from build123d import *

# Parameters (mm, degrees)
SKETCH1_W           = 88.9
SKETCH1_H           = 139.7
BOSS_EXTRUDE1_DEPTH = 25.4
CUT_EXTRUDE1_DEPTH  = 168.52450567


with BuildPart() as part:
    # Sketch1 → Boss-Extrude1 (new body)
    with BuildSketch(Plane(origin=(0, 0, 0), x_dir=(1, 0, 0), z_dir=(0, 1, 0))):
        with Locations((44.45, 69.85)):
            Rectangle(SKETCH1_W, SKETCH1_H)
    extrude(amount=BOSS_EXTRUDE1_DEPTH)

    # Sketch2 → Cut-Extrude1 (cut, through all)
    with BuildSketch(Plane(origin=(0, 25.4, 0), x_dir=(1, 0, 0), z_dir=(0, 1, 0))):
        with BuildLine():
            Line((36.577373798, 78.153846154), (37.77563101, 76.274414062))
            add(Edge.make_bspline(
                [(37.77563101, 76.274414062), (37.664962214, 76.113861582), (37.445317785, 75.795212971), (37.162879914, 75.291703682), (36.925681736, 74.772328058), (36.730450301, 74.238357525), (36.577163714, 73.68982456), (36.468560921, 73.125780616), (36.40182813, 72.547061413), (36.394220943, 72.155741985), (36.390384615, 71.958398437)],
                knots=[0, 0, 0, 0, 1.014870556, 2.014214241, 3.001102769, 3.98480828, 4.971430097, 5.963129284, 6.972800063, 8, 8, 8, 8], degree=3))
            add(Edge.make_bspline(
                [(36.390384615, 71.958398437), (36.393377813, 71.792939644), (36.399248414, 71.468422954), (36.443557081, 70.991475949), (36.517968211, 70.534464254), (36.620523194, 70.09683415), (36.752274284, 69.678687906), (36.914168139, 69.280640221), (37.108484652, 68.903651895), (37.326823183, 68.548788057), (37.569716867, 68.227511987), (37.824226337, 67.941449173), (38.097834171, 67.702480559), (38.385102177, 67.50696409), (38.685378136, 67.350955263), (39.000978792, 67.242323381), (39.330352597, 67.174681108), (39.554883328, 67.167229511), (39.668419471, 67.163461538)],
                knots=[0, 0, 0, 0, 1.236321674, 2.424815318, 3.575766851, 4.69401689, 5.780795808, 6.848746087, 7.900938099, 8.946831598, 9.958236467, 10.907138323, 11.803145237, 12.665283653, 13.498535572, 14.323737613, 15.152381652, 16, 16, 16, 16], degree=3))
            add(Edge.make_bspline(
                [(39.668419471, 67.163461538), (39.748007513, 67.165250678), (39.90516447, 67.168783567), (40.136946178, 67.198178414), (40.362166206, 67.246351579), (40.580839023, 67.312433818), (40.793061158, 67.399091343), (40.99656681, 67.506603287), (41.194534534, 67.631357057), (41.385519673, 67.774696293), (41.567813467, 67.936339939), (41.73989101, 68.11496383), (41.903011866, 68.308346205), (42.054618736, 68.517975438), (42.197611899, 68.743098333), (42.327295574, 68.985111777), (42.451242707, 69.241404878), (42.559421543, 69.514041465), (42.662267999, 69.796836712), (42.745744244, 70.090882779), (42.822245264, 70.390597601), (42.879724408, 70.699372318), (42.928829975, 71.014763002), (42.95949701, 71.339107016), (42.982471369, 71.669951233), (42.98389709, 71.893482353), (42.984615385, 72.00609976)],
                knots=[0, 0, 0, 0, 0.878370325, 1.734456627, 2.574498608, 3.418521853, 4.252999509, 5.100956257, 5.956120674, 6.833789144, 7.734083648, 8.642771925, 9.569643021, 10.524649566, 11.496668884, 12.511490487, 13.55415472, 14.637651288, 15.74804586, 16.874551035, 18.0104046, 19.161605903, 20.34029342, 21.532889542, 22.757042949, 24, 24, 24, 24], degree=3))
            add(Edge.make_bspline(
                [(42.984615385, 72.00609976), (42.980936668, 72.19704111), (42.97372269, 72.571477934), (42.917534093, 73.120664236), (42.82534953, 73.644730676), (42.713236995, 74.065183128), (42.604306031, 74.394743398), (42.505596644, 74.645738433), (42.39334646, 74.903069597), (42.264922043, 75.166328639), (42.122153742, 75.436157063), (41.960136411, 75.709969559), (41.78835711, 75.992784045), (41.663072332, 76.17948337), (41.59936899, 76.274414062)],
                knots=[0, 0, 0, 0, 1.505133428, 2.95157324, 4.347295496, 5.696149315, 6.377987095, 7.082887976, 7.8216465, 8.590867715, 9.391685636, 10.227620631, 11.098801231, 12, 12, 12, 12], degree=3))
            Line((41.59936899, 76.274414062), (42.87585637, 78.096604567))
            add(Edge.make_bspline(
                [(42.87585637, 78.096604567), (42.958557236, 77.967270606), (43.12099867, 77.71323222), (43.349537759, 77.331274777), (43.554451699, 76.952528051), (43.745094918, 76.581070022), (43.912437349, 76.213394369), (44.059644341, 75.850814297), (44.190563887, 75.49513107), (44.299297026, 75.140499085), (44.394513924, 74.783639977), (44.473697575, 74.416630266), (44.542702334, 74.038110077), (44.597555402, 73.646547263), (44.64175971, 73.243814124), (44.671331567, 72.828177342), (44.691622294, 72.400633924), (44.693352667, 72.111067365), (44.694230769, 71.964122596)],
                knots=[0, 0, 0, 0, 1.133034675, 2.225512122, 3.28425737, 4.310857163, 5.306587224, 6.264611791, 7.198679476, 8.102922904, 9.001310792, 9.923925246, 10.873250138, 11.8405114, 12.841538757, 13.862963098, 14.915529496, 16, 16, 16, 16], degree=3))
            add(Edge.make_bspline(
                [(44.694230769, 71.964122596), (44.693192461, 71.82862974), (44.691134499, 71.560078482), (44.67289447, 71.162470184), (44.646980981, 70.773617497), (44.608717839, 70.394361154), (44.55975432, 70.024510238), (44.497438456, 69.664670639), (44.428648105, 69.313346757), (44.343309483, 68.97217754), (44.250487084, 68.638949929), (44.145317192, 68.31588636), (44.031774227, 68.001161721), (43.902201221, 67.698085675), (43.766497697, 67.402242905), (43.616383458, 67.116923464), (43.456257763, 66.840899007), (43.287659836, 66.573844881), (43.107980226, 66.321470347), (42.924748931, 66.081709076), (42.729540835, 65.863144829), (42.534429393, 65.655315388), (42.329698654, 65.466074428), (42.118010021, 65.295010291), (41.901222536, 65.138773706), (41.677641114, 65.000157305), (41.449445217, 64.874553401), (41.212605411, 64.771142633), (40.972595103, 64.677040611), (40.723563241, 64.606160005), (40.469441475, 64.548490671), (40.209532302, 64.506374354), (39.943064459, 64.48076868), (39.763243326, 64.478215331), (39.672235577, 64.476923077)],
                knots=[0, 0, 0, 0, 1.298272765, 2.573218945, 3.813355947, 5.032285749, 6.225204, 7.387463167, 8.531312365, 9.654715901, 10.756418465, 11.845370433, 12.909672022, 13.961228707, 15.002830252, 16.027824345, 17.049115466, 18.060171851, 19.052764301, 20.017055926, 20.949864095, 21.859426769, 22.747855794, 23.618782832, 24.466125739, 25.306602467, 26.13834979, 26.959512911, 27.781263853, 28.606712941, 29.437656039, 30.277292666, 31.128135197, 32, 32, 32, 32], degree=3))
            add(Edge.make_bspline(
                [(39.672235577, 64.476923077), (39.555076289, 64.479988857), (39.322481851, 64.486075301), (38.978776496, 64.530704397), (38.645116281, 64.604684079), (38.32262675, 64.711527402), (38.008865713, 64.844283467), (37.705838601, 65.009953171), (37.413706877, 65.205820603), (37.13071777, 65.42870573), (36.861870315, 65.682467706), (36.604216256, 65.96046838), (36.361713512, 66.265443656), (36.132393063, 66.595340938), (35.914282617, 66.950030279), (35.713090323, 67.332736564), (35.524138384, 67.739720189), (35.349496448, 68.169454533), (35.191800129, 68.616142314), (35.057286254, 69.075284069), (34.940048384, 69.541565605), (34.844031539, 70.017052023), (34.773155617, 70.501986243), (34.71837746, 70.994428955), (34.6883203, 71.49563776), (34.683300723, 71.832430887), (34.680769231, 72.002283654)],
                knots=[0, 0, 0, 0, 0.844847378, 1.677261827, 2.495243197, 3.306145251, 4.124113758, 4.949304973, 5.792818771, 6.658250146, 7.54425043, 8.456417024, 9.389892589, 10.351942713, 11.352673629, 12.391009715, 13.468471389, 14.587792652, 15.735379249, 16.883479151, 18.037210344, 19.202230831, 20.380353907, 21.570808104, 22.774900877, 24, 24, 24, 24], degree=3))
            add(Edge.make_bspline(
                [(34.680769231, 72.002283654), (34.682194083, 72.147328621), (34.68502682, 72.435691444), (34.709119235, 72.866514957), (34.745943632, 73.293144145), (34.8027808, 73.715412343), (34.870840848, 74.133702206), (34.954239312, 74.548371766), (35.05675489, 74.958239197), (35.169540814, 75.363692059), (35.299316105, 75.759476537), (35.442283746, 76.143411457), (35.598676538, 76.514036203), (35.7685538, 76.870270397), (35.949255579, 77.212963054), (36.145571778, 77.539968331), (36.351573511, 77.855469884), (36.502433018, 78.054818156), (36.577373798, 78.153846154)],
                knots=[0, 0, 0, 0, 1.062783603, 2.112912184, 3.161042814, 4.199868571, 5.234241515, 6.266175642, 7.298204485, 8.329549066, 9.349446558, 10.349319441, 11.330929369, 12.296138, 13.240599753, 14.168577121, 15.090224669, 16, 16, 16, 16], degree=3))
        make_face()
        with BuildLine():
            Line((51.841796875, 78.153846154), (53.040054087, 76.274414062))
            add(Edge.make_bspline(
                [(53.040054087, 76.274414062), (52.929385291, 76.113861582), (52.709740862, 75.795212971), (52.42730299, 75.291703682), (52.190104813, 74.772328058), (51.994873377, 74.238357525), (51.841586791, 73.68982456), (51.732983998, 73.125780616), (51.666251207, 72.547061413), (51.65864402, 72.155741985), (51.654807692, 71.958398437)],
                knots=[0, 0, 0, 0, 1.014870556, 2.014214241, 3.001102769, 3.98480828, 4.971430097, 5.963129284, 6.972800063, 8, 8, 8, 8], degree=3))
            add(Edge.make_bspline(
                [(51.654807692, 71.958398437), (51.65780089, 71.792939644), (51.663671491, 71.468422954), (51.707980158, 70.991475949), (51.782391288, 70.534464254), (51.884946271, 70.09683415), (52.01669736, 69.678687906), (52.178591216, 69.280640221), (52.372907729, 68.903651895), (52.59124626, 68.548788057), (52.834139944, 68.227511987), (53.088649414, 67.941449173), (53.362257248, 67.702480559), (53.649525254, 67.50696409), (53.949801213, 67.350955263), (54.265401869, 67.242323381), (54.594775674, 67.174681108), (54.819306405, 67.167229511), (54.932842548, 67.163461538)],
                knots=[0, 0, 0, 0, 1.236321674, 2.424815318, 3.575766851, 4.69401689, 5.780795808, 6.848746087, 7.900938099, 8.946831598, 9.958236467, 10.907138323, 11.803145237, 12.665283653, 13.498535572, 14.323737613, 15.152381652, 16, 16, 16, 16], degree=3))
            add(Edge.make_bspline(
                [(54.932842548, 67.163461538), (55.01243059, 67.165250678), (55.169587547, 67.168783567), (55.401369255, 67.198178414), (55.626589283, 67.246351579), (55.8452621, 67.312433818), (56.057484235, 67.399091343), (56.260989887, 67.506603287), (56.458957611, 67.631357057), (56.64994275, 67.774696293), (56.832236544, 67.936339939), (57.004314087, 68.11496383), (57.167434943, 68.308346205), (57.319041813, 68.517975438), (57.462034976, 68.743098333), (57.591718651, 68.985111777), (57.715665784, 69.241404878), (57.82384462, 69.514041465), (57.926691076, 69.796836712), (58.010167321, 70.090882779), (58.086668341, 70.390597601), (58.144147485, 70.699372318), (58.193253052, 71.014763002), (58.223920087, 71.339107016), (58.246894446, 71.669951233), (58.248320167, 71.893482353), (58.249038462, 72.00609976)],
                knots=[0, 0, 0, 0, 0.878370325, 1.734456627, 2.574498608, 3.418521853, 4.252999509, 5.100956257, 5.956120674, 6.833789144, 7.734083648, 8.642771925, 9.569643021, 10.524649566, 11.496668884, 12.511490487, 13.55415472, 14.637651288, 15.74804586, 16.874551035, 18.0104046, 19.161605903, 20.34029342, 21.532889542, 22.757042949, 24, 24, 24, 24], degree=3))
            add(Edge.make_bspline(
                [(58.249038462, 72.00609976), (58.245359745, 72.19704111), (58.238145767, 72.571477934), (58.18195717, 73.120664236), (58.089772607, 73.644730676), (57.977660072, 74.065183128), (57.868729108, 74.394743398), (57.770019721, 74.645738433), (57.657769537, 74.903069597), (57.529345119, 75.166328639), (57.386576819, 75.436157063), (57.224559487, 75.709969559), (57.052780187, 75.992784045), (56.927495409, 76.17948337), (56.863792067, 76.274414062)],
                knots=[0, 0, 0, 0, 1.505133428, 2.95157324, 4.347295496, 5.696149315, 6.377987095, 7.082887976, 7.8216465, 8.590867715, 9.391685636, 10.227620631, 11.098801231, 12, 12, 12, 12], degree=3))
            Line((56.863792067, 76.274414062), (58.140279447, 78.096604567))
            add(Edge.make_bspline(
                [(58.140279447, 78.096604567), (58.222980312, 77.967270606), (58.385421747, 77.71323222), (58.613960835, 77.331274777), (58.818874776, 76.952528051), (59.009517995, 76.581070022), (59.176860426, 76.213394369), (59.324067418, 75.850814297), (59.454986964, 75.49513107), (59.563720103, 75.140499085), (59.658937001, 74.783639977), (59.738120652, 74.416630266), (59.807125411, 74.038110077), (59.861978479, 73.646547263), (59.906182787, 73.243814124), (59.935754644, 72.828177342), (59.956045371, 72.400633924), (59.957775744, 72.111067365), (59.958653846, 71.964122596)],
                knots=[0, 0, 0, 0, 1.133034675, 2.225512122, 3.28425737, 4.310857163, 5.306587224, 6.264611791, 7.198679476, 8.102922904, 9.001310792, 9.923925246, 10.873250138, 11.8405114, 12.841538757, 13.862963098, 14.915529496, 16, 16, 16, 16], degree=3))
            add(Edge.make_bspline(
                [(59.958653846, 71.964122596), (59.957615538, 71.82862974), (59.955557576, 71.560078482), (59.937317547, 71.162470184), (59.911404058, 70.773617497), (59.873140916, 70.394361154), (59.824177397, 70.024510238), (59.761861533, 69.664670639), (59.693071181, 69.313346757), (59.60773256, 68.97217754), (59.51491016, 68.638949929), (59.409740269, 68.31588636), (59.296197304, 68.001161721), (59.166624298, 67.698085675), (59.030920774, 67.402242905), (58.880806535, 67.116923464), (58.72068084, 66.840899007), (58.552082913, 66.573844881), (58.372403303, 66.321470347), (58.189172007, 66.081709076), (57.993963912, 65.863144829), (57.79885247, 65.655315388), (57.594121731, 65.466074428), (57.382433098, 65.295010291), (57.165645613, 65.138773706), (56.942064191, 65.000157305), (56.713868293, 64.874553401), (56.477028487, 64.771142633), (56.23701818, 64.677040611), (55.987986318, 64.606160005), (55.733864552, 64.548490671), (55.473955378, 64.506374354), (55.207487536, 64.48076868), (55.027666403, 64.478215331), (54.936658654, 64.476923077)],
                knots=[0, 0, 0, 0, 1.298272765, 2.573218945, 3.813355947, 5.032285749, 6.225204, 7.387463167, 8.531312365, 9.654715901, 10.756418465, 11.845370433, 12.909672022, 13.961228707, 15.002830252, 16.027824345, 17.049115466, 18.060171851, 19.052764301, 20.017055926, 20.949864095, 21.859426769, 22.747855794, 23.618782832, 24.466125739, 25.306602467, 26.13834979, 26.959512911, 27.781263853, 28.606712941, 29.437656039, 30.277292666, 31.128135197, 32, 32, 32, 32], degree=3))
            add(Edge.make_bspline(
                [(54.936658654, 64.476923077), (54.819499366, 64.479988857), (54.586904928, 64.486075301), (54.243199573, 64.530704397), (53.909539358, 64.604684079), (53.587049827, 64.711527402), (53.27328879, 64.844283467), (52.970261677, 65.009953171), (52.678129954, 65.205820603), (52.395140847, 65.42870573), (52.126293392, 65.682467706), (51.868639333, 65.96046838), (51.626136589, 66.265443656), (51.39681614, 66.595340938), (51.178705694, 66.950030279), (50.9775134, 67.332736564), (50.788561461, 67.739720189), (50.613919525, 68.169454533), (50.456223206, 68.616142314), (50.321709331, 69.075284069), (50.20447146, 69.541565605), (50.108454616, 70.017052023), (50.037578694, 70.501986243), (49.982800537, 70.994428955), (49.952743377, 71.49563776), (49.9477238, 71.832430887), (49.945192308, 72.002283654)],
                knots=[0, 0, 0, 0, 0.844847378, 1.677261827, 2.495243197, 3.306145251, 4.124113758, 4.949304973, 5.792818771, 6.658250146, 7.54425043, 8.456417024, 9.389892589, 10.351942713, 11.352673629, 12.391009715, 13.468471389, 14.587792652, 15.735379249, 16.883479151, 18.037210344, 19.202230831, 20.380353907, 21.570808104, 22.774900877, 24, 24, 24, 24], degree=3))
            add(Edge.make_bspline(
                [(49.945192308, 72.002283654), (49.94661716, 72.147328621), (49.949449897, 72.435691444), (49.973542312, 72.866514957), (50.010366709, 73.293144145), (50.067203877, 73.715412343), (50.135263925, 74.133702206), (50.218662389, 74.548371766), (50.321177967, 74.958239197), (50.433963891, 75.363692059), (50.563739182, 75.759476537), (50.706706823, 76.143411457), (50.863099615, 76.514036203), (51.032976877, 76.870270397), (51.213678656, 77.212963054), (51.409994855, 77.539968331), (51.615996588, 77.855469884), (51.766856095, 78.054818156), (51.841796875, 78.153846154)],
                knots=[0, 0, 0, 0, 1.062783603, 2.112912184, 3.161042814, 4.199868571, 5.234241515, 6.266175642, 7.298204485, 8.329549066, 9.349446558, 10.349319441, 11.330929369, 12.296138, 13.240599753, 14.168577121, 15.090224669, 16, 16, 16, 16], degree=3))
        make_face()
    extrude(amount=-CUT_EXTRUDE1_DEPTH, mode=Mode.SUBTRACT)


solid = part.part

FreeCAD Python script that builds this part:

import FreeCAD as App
import Part
import Sketcher
Q = App.Units.Quantity

doc = App.newDocument("Part")
body = doc.addObject("PartDesign::Body", "Body")

sketch1 = body.newObject("Sketcher::SketchObject", "Sketch")
sketch1.AttachmentSupport = (doc.getObject("XZ_Plane"), [""])
sketch1.MapMode = "FlatFace"
sketch1.addGeometry([
    Part.LineSegment(App.Vector(0, -140, 0), App.Vector(0, 0, 0)),
    Part.LineSegment(App.Vector(0, 0, 0), App.Vector(89, 0, 0)),
    Part.LineSegment(App.Vector(89, 0, 0), App.Vector(89, -140, 0)),
    Part.LineSegment(App.Vector(89, -140, 0), App.Vector(0, -140, 0)),
], False)
sketch1.addConstraint([
    Sketcher.Constraint("Coincident", 0, 2, 1, 1),
    Sketcher.Constraint("Coincident", 1, 2, 2, 1),
    Sketcher.Constraint("Coincident", 2, 2, 3, 1),
    Sketcher.Constraint("Coincident", 3, 2, 0, 1),
    Sketcher.Constraint("Vertical", 0),
    Sketcher.Constraint("Horizontal", 1),
    Sketcher.Constraint("Vertical", 2),
    Sketcher.Constraint("Horizontal", 3),
    Sketcher.Constraint("Coincident", 0, 2, -1, 1),
    Sketcher.Constraint("DistanceX", 1, 1, 1, 2, Q("3.5 in")),
    Sketcher.Constraint("DistanceY", 0, 1, 0, 2, Q("5.5 in")),
])
pad1 = body.newObject("PartDesign::Pad", "Pad")
pad1.Profile = sketch1
pad1.Length = Q("1 in")
pad1.Reversed = True

sketch2 = body.newObject("Sketcher::SketchObject", "Sketch001")
sketch2.AttachmentSupport = (doc.getObject("XZ_Plane"), [""])
sketch2.MapMode = "FlatFace"
sketch2.AttachmentOffset = App.Placement(App.Vector(0, 0, -1 * 25.4), App.Rotation())
sketch2.addGeometry([
    Part.LineSegment(App.Vector(37.775631, -76.274414, 0), App.Vector(36.577374, -78.153846, 0)),
    Part.BSplineCurve([App.Vector(34.680769, -72.002284, 0), App.Vector(34.682194, -72.147329, 0), App.Vector(34.685027, -72.435691, 0), App.Vector(34.709119, -72.866515, 0), App.Vector(34.745944, -73.293144, 0), App.Vector(34.802781, -73.715412, 0), App.Vector(34.870841, -74.133702, 0), App.Vector(34.954239, -74.548372, 0), App.Vector(35.056755, -74.958239, 0), App.Vector(35.169541, -75.363692, 0), App.Vector(35.299316, -75.759477, 0), App.Vector(35.442284, -76.143411, 0), App.Vector(35.598677, -76.514036, 0), App.Vector(35.768554, -76.87027, 0), App.Vector(35.949256, -77.212963, 0), App.Vector(36.145572, -77.539968, 0), App.Vector(36.351574, -77.85547, 0), App.Vector(36.502433, -78.054818, 0), App.Vector(36.577374, -78.153846, 0)], [4, 1, 1, 1, 1, 1, 1, 1, 1, 1, 1, 1, 1, 1, 1, 1, 4], [0, 1.062783603, 2.112912184, 3.161042814, 4.199868571, 5.234241515, 6.266175642, 7.298204485, 8.329549066, 9.349446558, 10.349319441, 11.330929369, 12.296138, 13.240599753, 14.168577121, 15.090224669, 16], False, 3, [1, 1, 1, 1, 1, 1, 1, 1, 1, 1, 1, 1, 1, 1, 1, 1, 1, 1, 1], False),
    Part.BSplineCurve([App.Vector(39.672236, -64.476923, 0), App.Vector(39.555076, -64.479989, 0), App.Vector(39.322482, -64.486075, 0), App.Vector(38.978776, -64.530704, 0), App.Vector(38.645116, -64.604684, 0), App.Vector(38.322627, -64.711527, 0), App.Vector(38.008866, -64.844283, 0), App.Vector(37.705839, -65.009953, 0), App.Vector(37.413707, -65.205821, 0), App.Vector(37.130718, -65.428706, 0), App.Vector(36.86187, -65.682468, 0), App.Vector(36.604216, -65.960468, 0), App.Vector(36.361714, -66.265444, 0), App.Vector(36.132393, -66.595341, 0), App.Vector(35.914283, -66.95003, 0), App.Vector(35.71309, -67.332737, 0), App.Vector(35.524138, -67.73972, 0), App.Vector(35.349496, -68.169455, 0), App.Vector(35.1918, -68.616142, 0), App.Vector(35.057286, -69.075284, 0), App.Vector(34.940048, -69.541566, 0), App.Vector(34.844032, -70.017052, 0), App.Vector(34.773156, -70.501986, 0), App.Vector(34.718377, -70.994429, 0), App.Vector(34.68832, -71.495638, 0), App.Vector(34.683301, -71.832431, 0), App.Vector(34.680769, -72.002284, 0)], [4, 1, 1, 1, 1, 1, 1, 1, 1, 1, 1, 1, 1, 1, 1, 1, 1, 1, 1, 1, 1, 1, 1, 1, 4], [0, 0.844847378, 1.677261827, 2.495243197, 3.306145251, 4.124113758, 4.949304973, 5.792818771, 6.658250146, 7.54425043, 8.456417024, 9.389892589, 10.351942713, 11.352673629, 12.391009715, 13.468471389, 14.587792652, 15.735379249, 16.883479151, 18.037210344, 19.202230831, 20.380353907, 21.570808104, 22.774900877, 24], False, 3, [1, 1, 1, 1, 1, 1, 1, 1, 1, 1, 1, 1, 1, 1, 1, 1, 1, 1, 1, 1, 1, 1, 1, 1, 1, 1, 1], False),
    Part.BSplineCurve([App.Vector(44.694231, -71.964123, 0), App.Vector(44.693192, -71.82863, 0), App.Vector(44.691134, -71.560078, 0), App.Vector(44.672894, -71.16247, 0), App.Vector(44.646981, -70.773617, 0), App.Vector(44.608718, -70.394361, 0), App.Vector(44.559754, -70.02451, 0), App.Vector(44.497438, -69.664671, 0), App.Vector(44.428648, -69.313347, 0), App.Vector(44.343309, -68.972178, 0), App.Vector(44.250487, -68.63895, 0), App.Vector(44.145317, -68.315886, 0), App.Vector(44.031774, -68.001162, 0), App.Vector(43.902201, -67.698086, 0), App.Vector(43.766498, -67.402243, 0), App.Vector(43.616383, -67.116923, 0), App.Vector(43.456258, -66.840899, 0), App.Vector(43.28766, -66.573845, 0), App.Vector(43.10798, -66.32147, 0), App.Vector(42.924749, -66.081709, 0), App.Vector(42.729541, -65.863145, 0), App.Vector(42.534429, -65.655315, 0), App.Vector(42.329699, -65.466074, 0), App.Vector(42.11801, -65.29501, 0), App.Vector(41.901223, -65.138774, 0), App.Vector(41.677641, -65.000157, 0), App.Vector(41.449445, -64.874553, 0), App.Vector(41.212605, -64.771143, 0), App.Vector(40.972595, -64.677041, 0), App.Vector(40.723563, -64.60616, 0), App.Vector(40.469441, -64.548491, 0), App.Vector(40.209532, -64.506374, 0), App.Vector(39.943064, -64.480769, 0), App.Vector(39.763243, -64.478215, 0), App.Vector(39.672236, -64.476923, 0)], [4, 1, 1, 1, 1, 1, 1, 1, 1, 1, 1, 1, 1, 1, 1, 1, 1, 1, 1, 1, 1, 1, 1, 1, 1, 1, 1, 1, 1, 1, 1, 1, 4], [0, 1.298272765, 2.573218945, 3.813355947, 5.032285749, 6.225204, 7.387463167, 8.531312365, 9.654715901, 10.756418465, 11.845370433, 12.909672022, 13.961228707, 15.002830252, 16.027824345, 17.049115466, 18.060171851, 19.052764301, 20.017055926, 20.949864095, 21.859426769, 22.747855794, 23.618782832, 24.466125739, 25.306602467, 26.13834979, 26.959512911, 27.781263853, 28.606712941, 29.437656039, 30.277292666, 31.128135197, 32], False, 3, [1, 1, 1, 1, 1, 1, 1, 1, 1, 1, 1, 1, 1, 1, 1, 1, 1, 1, 1, 1, 1, 1, 1, 1, 1, 1, 1, 1, 1, 1, 1, 1, 1, 1, 1], False),
    Part.BSplineCurve([App.Vector(42.875856, -78.096605, 0), App.Vector(42.958557, -77.967271, 0), App.Vector(43.120999, -77.713232, 0), App.Vector(43.349538, -77.331275, 0), App.Vector(43.554452, -76.952528, 0), App.Vector(43.745095, -76.58107, 0), App.Vector(43.912437, -76.213394, 0), App.Vector(44.059644, -75.850814, 0), App.Vector(44.190564, -75.495131, 0), App.Vector(44.299297, -75.140499, 0), App.Vector(44.394514, -74.78364, 0), App.Vector(44.473698, -74.41663, 0), App.Vector(44.542702, -74.03811, 0), App.Vector(44.597555, -73.646547, 0), App.Vector(44.64176, -73.243814, 0), App.Vector(44.671332, -72.828177, 0), App.Vector(44.691622, -72.400634, 0), App.Vector(44.693353, -72.111067, 0), App.Vector(44.694231, -71.964123, 0)], [4, 1, 1, 1, 1, 1, 1, 1, 1, 1, 1, 1, 1, 1, 1, 1, 4], [0, 1.133034675, 2.225512122, 3.28425737, 4.310857163, 5.306587224, 6.264611791, 7.198679476, 8.102922904, 9.001310792, 9.923925246, 10.873250138, 11.8405114, 12.841538757, 13.862963098, 14.915529496, 16], False, 3, [1, 1, 1, 1, 1, 1, 1, 1, 1, 1, 1, 1, 1, 1, 1, 1, 1, 1, 1], False),
    Part.LineSegment(App.Vector(42.875856, -78.096605, 0), App.Vector(41.599369, -76.274414, 0)),
    Part.BSplineCurve([App.Vector(42.984615, -72.0061, 0), App.Vector(42.980937, -72.197041, 0), App.Vector(42.973723, -72.571478, 0), App.Vector(42.917534, -73.120664, 0), App.Vector(42.82535, -73.644731, 0), App.Vector(42.713237, -74.065183, 0), App.Vector(42.604306, -74.394743, 0), App.Vector(42.505597, -74.645738, 0), App.Vector(42.393346, -74.90307, 0), App.Vector(42.264922, -75.166329, 0), App.Vector(42.122154, -75.436157, 0), App.Vector(41.960136, -75.70997, 0), App.Vector(41.788357, -75.992784, 0), App.Vector(41.663072, -76.179483, 0), App.Vector(41.599369, -76.274414, 0)], [4, 1, 1, 1, 1, 1, 1, 1, 1, 1, 1, 1, 4], [0, 1.505133428, 2.95157324, 4.347295496, 5.696149315, 6.377987095, 7.082887976, 7.8216465, 8.590867715, 9.391685636, 10.227620631, 11.098801231, 12], False, 3, [1, 1, 1, 1, 1, 1, 1, 1, 1, 1, 1, 1, 1, 1, 1], False),
    Part.BSplineCurve([App.Vector(39.668419, -67.163462, 0), App.Vector(39.748008, -67.165251, 0), App.Vector(39.905164, -67.168784, 0), App.Vector(40.136946, -67.198178, 0), App.Vector(40.362166, -67.246352, 0), App.Vector(40.580839, -67.312434, 0), App.Vector(40.793061, -67.399091, 0), App.Vector(40.996567, -67.506603, 0), App.Vector(41.194535, -67.631357, 0), App.Vector(41.38552, -67.774696, 0), App.Vector(41.567813, -67.93634, 0), App.Vector(41.739891, -68.114964, 0), App.Vector(41.903012, -68.308346, 0), App.Vector(42.054619, -68.517975, 0), App.Vector(42.197612, -68.743098, 0), App.Vector(42.327296, -68.985112, 0), App.Vector(42.451243, -69.241405, 0), App.Vector(42.559422, -69.514041, 0), App.Vector(42.662268, -69.796837, 0), App.Vector(42.745744, -70.090883, 0), App.Vector(42.822245, -70.390598, 0), App.Vector(42.879724, -70.699372, 0), App.Vector(42.92883, -71.014763, 0), App.Vector(42.959497, -71.339107, 0), App.Vector(42.982471, -71.669951, 0), App.Vector(42.983897, -71.893482, 0), App.Vector(42.984615, -72.0061, 0)], [4, 1, 1, 1, 1, 1, 1, 1, 1, 1, 1, 1, 1, 1, 1, 1, 1, 1, 1, 1, 1, 1, 1, 1, 4], [0, 0.878370325, 1.734456627, 2.574498608, 3.418521853, 4.252999509, 5.100956257, 5.956120674, 6.833789144, 7.734083648, 8.642771925, 9.569643021, 10.524649566, 11.496668884, 12.511490487, 13.55415472, 14.637651288, 15.74804586, 16.874551035, 18.0104046, 19.161605903, 20.34029342, 21.532889542, 22.757042949, 24], False, 3, [1, 1, 1, 1, 1, 1, 1, 1, 1, 1, 1, 1, 1, 1, 1, 1, 1, 1, 1, 1, 1, 1, 1, 1, 1, 1, 1], False),
    Part.BSplineCurve([App.Vector(36.390385, -71.958398, 0), App.Vector(36.393378, -71.79294, 0), App.Vector(36.399248, -71.468423, 0), App.Vector(36.443557, -70.991476, 0), App.Vector(36.517968, -70.534464, 0), App.Vector(36.620523, -70.096834, 0), App.Vector(36.752274, -69.678688, 0), App.Vector(36.914168, -69.28064, 0), App.Vector(37.108485, -68.903652, 0), App.Vector(37.326823, -68.548788, 0), App.Vector(37.569717, -68.227512, 0), App.Vector(37.824226, -67.941449, 0), App.Vector(38.097834, -67.702481, 0), App.Vector(38.385102, -67.506964, 0), App.Vector(38.685378, -67.350955, 0), App.Vector(39.000979, -67.242323, 0), App.Vector(39.330353, -67.174681, 0), App.Vector(39.554883, -67.16723, 0), App.Vector(39.668419, -67.163462, 0)], [4, 1, 1, 1, 1, 1, 1, 1, 1, 1, 1, 1, 1, 1, 1, 1, 4], [0, 1.236321674, 2.424815318, 3.575766851, 4.69401689, 5.780795808, 6.848746087, 7.900938099, 8.946831598, 9.958236467, 10.907138323, 11.803145237, 12.665283653, 13.498535572, 14.323737613, 15.152381652, 16], False, 3, [1, 1, 1, 1, 1, 1, 1, 1, 1, 1, 1, 1, 1, 1, 1, 1, 1, 1, 1], False),
    Part.BSplineCurve([App.Vector(37.775631, -76.274414, 0), App.Vector(37.664962, -76.113862, 0), App.Vector(37.445318, -75.795213, 0), App.Vector(37.16288, -75.291704, 0), App.Vector(36.925682, -74.772328, 0), App.Vector(36.73045, -74.238358, 0), App.Vector(36.577164, -73.689825, 0), App.Vector(36.468561, -73.125781, 0), App.Vector(36.401828, -72.547061, 0), App.Vector(36.394221, -72.155742, 0), App.Vector(36.390385, -71.958398, 0)], [4, 1, 1, 1, 1, 1, 1, 1, 4], [0, 1.014870556, 2.014214241, 3.001102769, 3.98480828, 4.971430097, 5.963129284, 6.972800063, 8], False, 3, [1, 1, 1, 1, 1, 1, 1, 1, 1, 1, 1], False),
    Part.LineSegment(App.Vector(53.040054, -76.274414, 0), App.Vector(51.841797, -78.153846, 0)),
    Part.BSplineCurve([App.Vector(49.945192, -72.002284, 0), App.Vector(49.946617, -72.147329, 0), App.Vector(49.94945, -72.435691, 0), App.Vector(49.973542, -72.866515, 0), App.Vector(50.010367, -73.293144, 0), App.Vector(50.067204, -73.715412, 0), App.Vector(50.135264, -74.133702, 0), App.Vector(50.218662, -74.548372, 0), App.Vector(50.321178, -74.958239, 0), App.Vector(50.433964, -75.363692, 0), App.Vector(50.563739, -75.759477, 0), App.Vector(50.706707, -76.143411, 0), App.Vector(50.8631, -76.514036, 0), App.Vector(51.032977, -76.87027, 0), App.Vector(51.213679, -77.212963, 0), App.Vector(51.409995, -77.539968, 0), App.Vector(51.615997, -77.85547, 0), App.Vector(51.766856, -78.054818, 0), App.Vector(51.841797, -78.153846, 0)], [4, 1, 1, 1, 1, 1, 1, 1, 1, 1, 1, 1, 1, 1, 1, 1, 4], [0, 1.062783603, 2.112912184, 3.161042814, 4.199868571, 5.234241515, 6.266175642, 7.298204485, 8.329549066, 9.349446558, 10.349319441, 11.330929369, 12.296138, 13.240599753, 14.168577121, 15.090224669, 16], False, 3, [1, 1, 1, 1, 1, 1, 1, 1, 1, 1, 1, 1, 1, 1, 1, 1, 1, 1, 1], False),
    Part.BSplineCurve([App.Vector(54.936659, -64.476923, 0), App.Vector(54.819499, -64.479989, 0), App.Vector(54.586905, -64.486075, 0), App.Vector(54.2432, -64.530704, 0), App.Vector(53.909539, -64.604684, 0), App.Vector(53.58705, -64.711527, 0), App.Vector(53.273289, -64.844283, 0), App.Vector(52.970262, -65.009953, 0), App.Vector(52.67813, -65.205821, 0), App.Vector(52.395141, -65.428706, 0), App.Vector(52.126293, -65.682468, 0), App.Vector(51.868639, -65.960468, 0), App.Vector(51.626137, -66.265444, 0), App.Vector(51.396816, -66.595341, 0), App.Vector(51.178706, -66.95003, 0), App.Vector(50.977513, -67.332737, 0), App.Vector(50.788561, -67.73972, 0), App.Vector(50.61392, -68.169455, 0), App.Vector(50.456223, -68.616142, 0), App.Vector(50.321709, -69.075284, 0), App.Vector(50.204471, -69.541566, 0), App.Vector(50.108455, -70.017052, 0), App.Vector(50.037579, -70.501986, 0), App.Vector(49.982801, -70.994429, 0), App.Vector(49.952743, -71.495638, 0), App.Vector(49.947724, -71.832431, 0), App.Vector(49.945192, -72.002284, 0)], [4, 1, 1, 1, 1, 1, 1, 1, 1, 1, 1, 1, 1, 1, 1, 1, 1, 1, 1, 1, 1, 1, 1, 1, 4], [0, 0.844847378, 1.677261827, 2.495243197, 3.306145251, 4.124113758, 4.949304973, 5.792818771, 6.658250146, 7.54425043, 8.456417024, 9.389892589, 10.351942713, 11.352673629, 12.391009715, 13.468471389, 14.587792652, 15.735379249, 16.883479151, 18.037210344, 19.202230831, 20.380353907, 21.570808104, 22.774900877, 24], False, 3, [1, 1, 1, 1, 1, 1, 1, 1, 1, 1, 1, 1, 1, 1, 1, 1, 1, 1, 1, 1, 1, 1, 1, 1, 1, 1, 1], False),
    Part.BSplineCurve([App.Vector(59.958654, -71.964123, 0), App.Vector(59.957616, -71.82863, 0), App.Vector(59.955558, -71.560078, 0), App.Vector(59.937318, -71.16247, 0), App.Vector(59.911404, -70.773617, 0), App.Vector(59.873141, -70.394361, 0), App.Vector(59.824177, -70.02451, 0), App.Vector(59.761862, -69.664671, 0), App.Vector(59.693071, -69.313347, 0), App.Vector(59.607733, -68.972178, 0), App.Vector(59.51491, -68.63895, 0), App.Vector(59.40974, -68.315886, 0), App.Vector(59.296197, -68.001162, 0), App.Vector(59.166624, -67.698086, 0), App.Vector(59.030921, -67.402243, 0), App.Vector(58.880807, -67.116923, 0), App.Vector(58.720681, -66.840899, 0), App.Vector(58.552083, -66.573845, 0), App.Vector(58.372403, -66.32147, 0), App.Vector(58.189172, -66.081709, 0), App.Vector(57.993964, -65.863145, 0), App.Vector(57.798852, -65.655315, 0), App.Vector(57.594122, -65.466074, 0), App.Vector(57.382433, -65.29501, 0), App.Vector(57.165646, -65.138774, 0), App.Vector(56.942064, -65.000157, 0), App.Vector(56.713868, -64.874553, 0), App.Vector(56.477028, -64.771143, 0), App.Vector(56.237018, -64.677041, 0), App.Vector(55.987986, -64.60616, 0), App.Vector(55.733865, -64.548491, 0), App.Vector(55.473955, -64.506374, 0), App.Vector(55.207488, -64.480769, 0), App.Vector(55.027666, -64.478215, 0), App.Vector(54.936659, -64.476923, 0)], [4, 1, 1, 1, 1, 1, 1, 1, 1, 1, 1, 1, 1, 1, 1, 1, 1, 1, 1, 1, 1, 1, 1, 1, 1, 1, 1, 1, 1, 1, 1, 1, 4], [0, 1.298272765, 2.573218945, 3.813355947, 5.032285749, 6.225204, 7.387463167, 8.531312365, 9.654715901, 10.756418465, 11.845370433, 12.909672022, 13.961228707, 15.002830252, 16.027824345, 17.049115466, 18.060171851, 19.052764301, 20.017055926, 20.949864095, 21.859426769, 22.747855794, 23.618782832, 24.466125739, 25.306602467, 26.13834979, 26.959512911, 27.781263853, 28.606712941, 29.437656039, 30.277292666, 31.128135197, 32], False, 3, [1, 1, 1, 1, 1, 1, 1, 1, 1, 1, 1, 1, 1, 1, 1, 1, 1, 1, 1, 1, 1, 1, 1, 1, 1, 1, 1, 1, 1, 1, 1, 1, 1, 1, 1], False),
    Part.BSplineCurve([App.Vector(58.140279, -78.096605, 0), App.Vector(58.22298, -77.967271, 0), App.Vector(58.385422, -77.713232, 0), App.Vector(58.613961, -77.331275, 0), App.Vector(58.818875, -76.952528, 0), App.Vector(59.009518, -76.58107, 0), App.Vector(59.17686, -76.213394, 0), App.Vector(59.324067, -75.850814, 0), App.Vector(59.454987, -75.495131, 0), App.Vector(59.56372, -75.140499, 0), App.Vector(59.658937, -74.78364, 0), App.Vector(59.738121, -74.41663, 0), App.Vector(59.807125, -74.03811, 0), App.Vector(59.861978, -73.646547, 0), App.Vector(59.906183, -73.243814, 0), App.Vector(59.935755, -72.828177, 0), App.Vector(59.956045, -72.400634, 0), App.Vector(59.957776, -72.111067, 0), App.Vector(59.958654, -71.964123, 0)], [4, 1, 1, 1, 1, 1, 1, 1, 1, 1, 1, 1, 1, 1, 1, 1, 4], [0, 1.133034675, 2.225512122, 3.28425737, 4.310857163, 5.306587224, 6.264611791, 7.198679476, 8.102922904, 9.001310792, 9.923925246, 10.873250138, 11.8405114, 12.841538757, 13.862963098, 14.915529496, 16], False, 3, [1, 1, 1, 1, 1, 1, 1, 1, 1, 1, 1, 1, 1, 1, 1, 1, 1, 1, 1], False),
    Part.LineSegment(App.Vector(58.140279, -78.096605, 0), App.Vector(56.863792, -76.274414, 0)),
    Part.BSplineCurve([App.Vector(58.249038, -72.0061, 0), App.Vector(58.24536, -72.197041, 0), App.Vector(58.238146, -72.571478, 0), App.Vector(58.181957, -73.120664, 0), App.Vector(58.089773, -73.644731, 0), App.Vector(57.97766, -74.065183, 0), App.Vector(57.868729, -74.394743, 0), App.Vector(57.77002, -74.645738, 0), App.Vector(57.65777, -74.90307, 0), App.Vector(57.529345, -75.166329, 0), App.Vector(57.386577, -75.436157, 0), App.Vector(57.224559, -75.70997, 0), App.Vector(57.05278, -75.992784, 0), App.Vector(56.927495, -76.179483, 0), App.Vector(56.863792, -76.274414, 0)], [4, 1, 1, 1, 1, 1, 1, 1, 1, 1, 1, 1, 4], [0, 1.505133428, 2.95157324, 4.347295496, 5.696149315, 6.377987095, 7.082887976, 7.8216465, 8.590867715, 9.391685636, 10.227620631, 11.098801231, 12], False, 3, [1, 1, 1, 1, 1, 1, 1, 1, 1, 1, 1, 1, 1, 1, 1], False),
    Part.BSplineCurve([App.Vector(54.932843, -67.163462, 0), App.Vector(55.012431, -67.165251, 0), App.Vector(55.169588, -67.168784, 0), App.Vector(55.401369, -67.198178, 0), App.Vector(55.626589, -67.246352, 0), App.Vector(55.845262, -67.312434, 0), App.Vector(56.057484, -67.399091, 0), App.Vector(56.26099, -67.506603, 0), App.Vector(56.458958, -67.631357, 0), App.Vector(56.649943, -67.774696, 0), App.Vector(56.832237, -67.93634, 0), App.Vector(57.004314, -68.114964, 0), App.Vector(57.167435, -68.308346, 0), App.Vector(57.319042, -68.517975, 0), App.Vector(57.462035, -68.743098, 0), App.Vector(57.591719, -68.985112, 0), App.Vector(57.715666, -69.241405, 0), App.Vector(57.823845, -69.514041, 0), App.Vector(57.926691, -69.796837, 0), App.Vector(58.010167, -70.090883, 0), App.Vector(58.086668, -70.390598, 0), App.Vector(58.144147, -70.699372, 0), App.Vector(58.193253, -71.014763, 0), App.Vector(58.22392, -71.339107, 0), App.Vector(58.246894, -71.669951, 0), App.Vector(58.24832, -71.893482, 0), App.Vector(58.249038, -72.0061, 0)], [4, 1, 1, 1, 1, 1, 1, 1, 1, 1, 1, 1, 1, 1, 1, 1, 1, 1, 1, 1, 1, 1, 1, 1, 4], [0, 0.878370325, 1.734456627, 2.574498608, 3.418521853, 4.252999509, 5.100956257, 5.956120674, 6.833789144, 7.734083648, 8.642771925, 9.569643021, 10.524649566, 11.496668884, 12.511490487, 13.55415472, 14.637651288, 15.74804586, 16.874551035, 18.0104046, 19.161605903, 20.34029342, 21.532889542, 22.757042949, 24], False, 3, [1, 1, 1, 1, 1, 1, 1, 1, 1, 1, 1, 1, 1, 1, 1, 1, 1, 1, 1, 1, 1, 1, 1, 1, 1, 1, 1], False),
    Part.BSplineCurve([App.Vector(51.654808, -71.958398, 0), App.Vector(51.657801, -71.79294, 0), App.Vector(51.663671, -71.468423, 0), App.Vector(51.70798, -70.991476, 0), App.Vector(51.782391, -70.534464, 0), App.Vector(51.884946, -70.096834, 0), App.Vector(52.016697, -69.678688, 0), App.Vector(52.178591, -69.28064, 0), App.Vector(52.372908, -68.903652, 0), App.Vector(52.591246, -68.548788, 0), App.Vector(52.83414, -68.227512, 0), App.Vector(53.088649, -67.941449, 0), App.Vector(53.362257, -67.702481, 0), App.Vector(53.649525, -67.506964, 0), App.Vector(53.949801, -67.350955, 0), App.Vector(54.265402, -67.242323, 0), App.Vector(54.594776, -67.174681, 0), App.Vector(54.819306, -67.16723, 0), App.Vector(54.932843, -67.163462, 0)], [4, 1, 1, 1, 1, 1, 1, 1, 1, 1, 1, 1, 1, 1, 1, 1, 4], [0, 1.236321674, 2.424815318, 3.575766851, 4.69401689, 5.780795808, 6.848746087, 7.900938099, 8.946831598, 9.958236467, 10.907138323, 11.803145237, 12.665283653, 13.498535572, 14.323737613, 15.152381652, 16], False, 3, [1, 1, 1, 1, 1, 1, 1, 1, 1, 1, 1, 1, 1, 1, 1, 1, 1, 1, 1], False),
    Part.BSplineCurve([App.Vector(53.040054, -76.274414, 0), App.Vector(52.929385, -76.113862, 0), App.Vector(52.709741, -75.795213, 0), App.Vector(52.427303, -75.291704, 0), App.Vector(52.190105, -74.772328, 0), App.Vector(51.994873, -74.238358, 0), App.Vector(51.841587, -73.689825, 0), App.Vector(51.732984, -73.125781, 0), App.Vector(51.666251, -72.547061, 0), App.Vector(51.658644, -72.155742, 0), App.Vector(51.654808, -71.958398, 0)], [4, 1, 1, 1, 1, 1, 1, 1, 4], [0, 1.014870556, 2.014214241, 3.001102769, 3.98480828, 4.971430097, 5.963129284, 6.972800063, 8], False, 3, [1, 1, 1, 1, 1, 1, 1, 1, 1, 1, 1], False),
], False)
sketch2.addConstraint([
    Sketcher.Constraint("Block", 1),
    Sketcher.Constraint("Block", 2),
    Sketcher.Constraint("Block", 3),
    Sketcher.Constraint("Block", 4),
    Sketcher.Constraint("Block", 6),
    Sketcher.Constraint("Block", 7),
    Sketcher.Constraint("Block", 8),
    Sketcher.Constraint("Block", 9),
    Sketcher.Constraint("Block", 11),
    Sketcher.Constraint("Block", 12),
    Sketcher.Constraint("Block", 13),
    Sketcher.Constraint("Block", 14),
    Sketcher.Constraint("Block", 16),
    Sketcher.Constraint("Block", 17),
    Sketcher.Constraint("Block", 18),
    Sketcher.Constraint("Block", 19),
    Sketcher.Constraint("Coincident", 0, 2, 1, 2),
    Sketcher.Constraint("Coincident", 4, 1, 5, 1),
    Sketcher.Constraint("Coincident", 5, 2, 6, 2),
    Sketcher.Constraint("Coincident", 9, 1, 0, 1),
    Sketcher.Constraint("Coincident", 10, 2, 11, 2),
    Sketcher.Constraint("Coincident", 14, 1, 15, 1),
    Sketcher.Constraint("Coincident", 15, 2, 16, 2),
    Sketcher.Constraint("Coincident", 19, 1, 10, 1),
])
pocket1 = body.newObject("PartDesign::Pocket", "Pocket")
pocket1.Profile = sketch2
pocket1.Type = "ThroughAll"
pocket1.Reversed = True

doc.recompute()
